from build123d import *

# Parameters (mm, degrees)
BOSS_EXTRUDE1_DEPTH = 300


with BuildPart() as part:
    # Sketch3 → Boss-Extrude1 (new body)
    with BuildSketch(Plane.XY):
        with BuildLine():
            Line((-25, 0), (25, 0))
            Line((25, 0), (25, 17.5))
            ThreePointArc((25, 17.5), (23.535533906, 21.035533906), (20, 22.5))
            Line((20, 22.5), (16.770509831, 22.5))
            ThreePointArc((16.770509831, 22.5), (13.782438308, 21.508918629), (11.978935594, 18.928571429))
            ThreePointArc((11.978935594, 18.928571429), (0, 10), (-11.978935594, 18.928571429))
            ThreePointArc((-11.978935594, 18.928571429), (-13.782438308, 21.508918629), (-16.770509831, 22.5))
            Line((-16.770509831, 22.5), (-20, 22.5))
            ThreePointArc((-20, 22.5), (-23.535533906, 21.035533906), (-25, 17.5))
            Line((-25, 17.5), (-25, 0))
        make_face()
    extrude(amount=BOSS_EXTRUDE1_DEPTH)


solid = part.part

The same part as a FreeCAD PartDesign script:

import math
import FreeCAD as App
import Part
import Sketcher

doc = App.newDocument("Part")
body = doc.addObject("PartDesign::Body", "Body")

sketch1 = body.newObject("Sketcher::SketchObject", "Sketch")
sketch1.AttachmentSupport = (doc.getObject("XY_Plane"), [""])
sketch1.MapMode = "FlatFace"
sketch1.addGeometry([
    Part.LineSegment(App.Vector(-25, 0, 0), App.Vector(25, 0, 0)),
    Part.LineSegment(App.Vector(25, 0, 0), App.Vector(25, 17.5, 0)),
    Part.ArcOfCircle(Part.Circle(App.Vector(20, 17.5, 0), App.Vector(0, 0, 1), 5), math.radians(0), math.radians(90)),
    Part.LineSegment(App.Vector(20, 22.5, 0), App.Vector(16.8, 22.5, 0)),
    Part.ArcOfCircle(Part.Circle(App.Vector(16.8, 17.5, 0), App.Vector(0, 0, 1), 5), math.radians(90), math.radians(163)),
    Part.ArcOfCircle(Part.Circle(App.Vector(0, 22.5, 0), App.Vector(0, 0, 1), 12.5), math.radians(-163), math.radians(-17)),
    Part.ArcOfCircle(Part.Circle(App.Vector(-16.8, 17.5, 0), App.Vector(0, 0, 1), 5), math.radians(17), math.radians(90)),
    Part.LineSegment(App.Vector(-16.8, 22.5, 0), App.Vector(-20, 22.5, 0)),
    Part.ArcOfCircle(Part.Circle(App.Vector(-20, 17.5, 0), App.Vector(0, 0, 1), 5), math.radians(90), math.radians(180)),
    Part.LineSegment(App.Vector(-25, 17.5, 0), App.Vector(-25, 0, 0)),
], False)
sketch1.addConstraint([
    Sketcher.Constraint("Coincident", 0, 2, 1, 1),
    Sketcher.Constraint("Tangent", 1, 2, 2, 1),
    Sketcher.Constraint("Tangent", 2, 2, 3, 1),
    Sketcher.Constraint("Tangent", 3, 2, 4, 1),
    Sketcher.Constraint("Tangent", 4, 2, 5, 2),
    Sketcher.Constraint("Tangent", 5, 1, 6, 1),
    Sketcher.Constraint("Tangent", 6, 2, 7, 1),
    Sketcher.Constraint("Tangent", 7, 2, 8, 1),
    Sketcher.Constraint("Tangent", 8, 2, 9, 1),
    Sketcher.Constraint("Coincident", 9, 2, 0, 1),
    Sketcher.Constraint("Horizontal", 0),
    Sketcher.Constraint("Vertical", 1),
    Sketcher.Constraint("Horizontal", 3),
    Sketcher.Constraint("Horizontal", 7),
    Sketcher.Constraint("Vertical", 9),
    Sketcher.Constraint("Equal", 2, 4),
    Sketcher.Constraint("Equal", 4, 6),
    Sketcher.Constraint("Equal", 6, 8),
    Sketcher.Constraint("Symmetric", 0, 2, 9, 2, -1, 1),
    Sketcher.Constraint("Symmetric", 4, 3, 6, 3, -2),
    Sketcher.Constraint("Horizontal", 5, 3, 2, 2),
    Sketcher.Constraint("Radius", 2, 5.0),
    Sketcher.Constraint("Radius", 5, 12.5),
    Sketcher.Constraint("DistanceX", 0, 1, 0, 2, 50.0),
    Sketcher.Constraint("DistanceY", 1, 1, 1, 2, 17.5),
])
pad1 = body.newObject("PartDesign::Pad", "Pad")
pad1.Profile = sketch1
pad1.Length = 300

doc.recompute()
